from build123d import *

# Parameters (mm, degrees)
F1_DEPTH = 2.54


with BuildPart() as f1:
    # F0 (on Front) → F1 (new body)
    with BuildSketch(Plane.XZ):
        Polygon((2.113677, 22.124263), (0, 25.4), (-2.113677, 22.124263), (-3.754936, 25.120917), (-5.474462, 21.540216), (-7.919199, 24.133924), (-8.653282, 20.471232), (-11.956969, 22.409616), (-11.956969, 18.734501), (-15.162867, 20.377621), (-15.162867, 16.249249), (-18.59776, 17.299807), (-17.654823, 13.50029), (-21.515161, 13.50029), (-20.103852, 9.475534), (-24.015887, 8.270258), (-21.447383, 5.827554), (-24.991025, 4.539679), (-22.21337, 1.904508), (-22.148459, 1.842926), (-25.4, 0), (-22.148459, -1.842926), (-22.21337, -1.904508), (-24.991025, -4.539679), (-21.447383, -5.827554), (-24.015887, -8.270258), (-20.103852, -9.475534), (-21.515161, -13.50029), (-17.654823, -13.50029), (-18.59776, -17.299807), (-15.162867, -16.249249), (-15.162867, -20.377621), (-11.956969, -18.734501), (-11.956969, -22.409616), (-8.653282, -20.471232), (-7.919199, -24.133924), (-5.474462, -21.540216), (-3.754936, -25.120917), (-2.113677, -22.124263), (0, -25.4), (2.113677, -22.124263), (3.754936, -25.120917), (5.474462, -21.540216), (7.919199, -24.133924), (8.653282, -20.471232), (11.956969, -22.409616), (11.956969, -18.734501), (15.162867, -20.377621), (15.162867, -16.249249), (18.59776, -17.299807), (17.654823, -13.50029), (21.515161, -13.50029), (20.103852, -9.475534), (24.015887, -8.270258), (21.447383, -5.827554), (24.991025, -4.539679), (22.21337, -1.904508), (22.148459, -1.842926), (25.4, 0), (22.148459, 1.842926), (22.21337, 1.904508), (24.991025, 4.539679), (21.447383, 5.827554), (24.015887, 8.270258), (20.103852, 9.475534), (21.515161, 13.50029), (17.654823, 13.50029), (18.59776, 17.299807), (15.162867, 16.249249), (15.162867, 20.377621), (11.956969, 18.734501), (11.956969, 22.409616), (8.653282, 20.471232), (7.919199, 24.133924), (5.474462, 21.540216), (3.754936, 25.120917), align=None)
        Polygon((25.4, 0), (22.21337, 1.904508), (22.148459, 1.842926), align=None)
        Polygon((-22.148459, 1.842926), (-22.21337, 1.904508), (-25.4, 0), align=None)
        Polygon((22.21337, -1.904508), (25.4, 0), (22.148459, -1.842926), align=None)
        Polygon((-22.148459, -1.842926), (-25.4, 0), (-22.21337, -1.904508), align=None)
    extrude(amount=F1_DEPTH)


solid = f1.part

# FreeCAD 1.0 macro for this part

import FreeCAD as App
import Part
import Sketcher
from FreeCAD import Vector
Q = App.Units.Quantity

doc = App.newDocument("Part")
params = doc.addObject("Spreadsheet::Sheet", "Params")
for row, (alias, value) in enumerate([
    ("pad1_length", "0.1 in"),
], start=1):
    params.set(f"A{row}", alias)
    params.set(f"B{row}", "=" + value)
    params.setAlias(f"B{row}", alias)

body = doc.addObject("PartDesign::Body", "Body")

# Sketch on XZ plane
sketch1 = doc.addObject("Sketcher::SketchObject", "Sketch")
body.addObject(sketch1)
sketch1.AttachmentSupport = (doc.XZ_Plane, [""])
sketch1.MapMode = "FlatFace"
sketch1.addGeometry([
    Part.LineSegment(Vector(3.8, 25.1, 0), Vector(2.1, 22.1, 0)),  # 0
    Part.LineSegment(Vector(2.1, 22.1, 0), Vector(0, 25.4, 0)),  # 1
    Part.LineSegment(Vector(0, 25.4, 0), Vector(-2.1, 22.1, 0)),  # 2
    Part.LineSegment(Vector(-2.1, 22.1, 0), Vector(-3.8, 25.1, 0)),  # 3
    Part.LineSegment(Vector(-3.8, 25.1, 0), Vector(-5.5, 21.5, 0)),  # 4
    Part.LineSegment(Vector(-5.5, 21.5, 0), Vector(-7.9, 24.1, 0)),  # 5
    Part.LineSegment(Vector(-7.9, 24.1, 0), Vector(-8.7, 20.5, 0)),  # 6
    Part.LineSegment(Vector(-8.7, 20.5, 0), Vector(-12, 22.4, 0)),  # 7
    Part.LineSegment(Vector(-12, 22.4, 0), Vector(-12, 18.7, 0)),  # 8
    Part.LineSegment(Vector(-12, 18.7, 0), Vector(-15.2, 20.4, 0)),  # 9
    Part.LineSegment(Vector(-15.2, 20.4, 0), Vector(-15.2, 16.2, 0)),  # 10
    Part.LineSegment(Vector(-15.2, 16.2, 0), Vector(-18.6, 17.3, 0)),  # 11
    Part.LineSegment(Vector(-18.6, 17.3, 0), Vector(-17.7, 13.5, 0)),  # 12
    Part.LineSegment(Vector(-17.7, 13.5, 0), Vector(-21.5, 13.5, 0)),  # 13
    Part.LineSegment(Vector(-21.5, 13.5, 0), Vector(-20.1, 9.5, 0)),  # 14
    Part.LineSegment(Vector(-20.1, 9.5, 0), Vector(-24, 8.3, 0)),  # 15
    Part.LineSegment(Vector(-24, 8.3, 0), Vector(-21.4, 5.8, 0)),  # 16
    Part.LineSegment(Vector(-21.4, 5.8, 0), Vector(-25, 4.5, 0)),  # 17
    Part.LineSegment(Vector(-25, 4.5, 0), Vector(-22.2, 1.9, 0)),  # 18
    Part.LineSegment(Vector(-22.2, 1.9, 0), Vector(-25.4, 0, 0)),  # 19
    Part.LineSegment(Vector(-25.4, 0, 0), Vector(-22.2, -1.9, 0)),  # 20
    Part.LineSegment(Vector(-22.2, -1.9, 0), Vector(-25, -4.5, 0)),  # 21
    Part.LineSegment(Vector(-25, -4.5, 0), Vector(-21.4, -5.8, 0)),  # 22
    Part.LineSegment(Vector(-21.4, -5.8, 0), Vector(-24, -8.3, 0)),  # 23
    Part.LineSegment(Vector(-24, -8.3, 0), Vector(-20.1, -9.5, 0)),  # 24
    Part.LineSegment(Vector(-20.1, -9.5, 0), Vector(-21.5, -13.5, 0)),  # 25
    Part.LineSegment(Vector(-21.5, -13.5, 0), Vector(-17.7, -13.5, 0)),  # 26
    Part.LineSegment(Vector(-17.7, -13.5, 0), Vector(-18.6, -17.3, 0)),  # 27
    Part.LineSegment(Vector(-18.6, -17.3, 0), Vector(-15.2, -16.2, 0)),  # 28
    Part.LineSegment(Vector(-15.2, -16.2, 0), Vector(-15.2, -20.4, 0)),  # 29
    Part.LineSegment(Vector(-15.2, -20.4, 0), Vector(-12, -18.7, 0)),  # 30
    Part.LineSegment(Vector(-12, -18.7, 0), Vector(-12, -22.4, 0)),  # 31
    Part.LineSegment(Vector(-12, -22.4, 0), Vector(-8.7, -20.5, 0)),  # 32
    Part.LineSegment(Vector(-8.7, -20.5, 0), Vector(-7.9, -24.1, 0)),  # 33
    Part.LineSegment(Vector(-7.9, -24.1, 0), Vector(-5.5, -21.5, 0)),  # 34
    Part.LineSegment(Vector(-5.5, -21.5, 0), Vector(-3.8, -25.1, 0)),  # 35
    Part.LineSegment(Vector(-3.8, -25.1, 0), Vector(-2.1, -22.1, 0)),  # 36
    Part.LineSegment(Vector(-2.1, -22.1, 0), Vector(0, -25.4, 0)),  # 37
    Part.LineSegment(Vector(0, -25.4, 0), Vector(2.1, -22.1, 0)),  # 38
    Part.LineSegment(Vector(2.1, -22.1, 0), Vector(3.8, -25.1, 0)),  # 39
    Part.LineSegment(Vector(3.8, -25.1, 0), Vector(5.5, -21.5, 0)),  # 40
    Part.LineSegment(Vector(5.5, -21.5, 0), Vector(7.9, -24.1, 0)),  # 41
    Part.LineSegment(Vector(7.9, -24.1, 0), Vector(8.7, -20.5, 0)),  # 42
    Part.LineSegment(Vector(8.7, -20.5, 0), Vector(12, -22.4, 0)),  # 43
    Part.LineSegment(Vector(12, -22.4, 0), Vector(12, -18.7, 0)),  # 44
    Part.LineSegment(Vector(12, -18.7, 0), Vector(15.2, -20.4, 0)),  # 45
    Part.LineSegment(Vector(15.2, -20.4, 0), Vector(15.2, -16.2, 0)),  # 46
    Part.LineSegment(Vector(15.2, -16.2, 0), Vector(18.6, -17.3, 0)),  # 47
    Part.LineSegment(Vector(18.6, -17.3, 0), Vector(17.7, -13.5, 0)),  # 48
    Part.LineSegment(Vector(17.7, -13.5, 0), Vector(21.5, -13.5, 0)),  # 49
    Part.LineSegment(Vector(21.5, -13.5, 0), Vector(20.1, -9.5, 0)),  # 50
    Part.LineSegment(Vector(20.1, -9.5, 0), Vector(24, -8.3, 0)),  # 51
    Part.LineSegment(Vector(24, -8.3, 0), Vector(21.4, -5.8, 0)),  # 52
    Part.LineSegment(Vector(21.4, -5.8, 0), Vector(25, -4.5, 0)),  # 53
    Part.LineSegment(Vector(25, -4.5, 0), Vector(22.2, -1.9, 0)),  # 54
    Part.LineSegment(Vector(22.2, -1.9, 0), Vector(25.4, 0, 0)),  # 55
    Part.LineSegment(Vector(25.4, 0, 0), Vector(22.2, 1.9, 0)),  # 56
    Part.LineSegment(Vector(22.2, 1.9, 0), Vector(25, 4.5, 0)),  # 57
    Part.LineSegment(Vector(25, 4.5, 0), Vector(21.4, 5.8, 0)),  # 58
    Part.LineSegment(Vector(21.4, 5.8, 0), Vector(24, 8.3, 0)),  # 59
    Part.LineSegment(Vector(24, 8.3, 0), Vector(20.1, 9.5, 0)),  # 60
    Part.LineSegment(Vector(20.1, 9.5, 0), Vector(21.5, 13.5, 0)),  # 61
    Part.LineSegment(Vector(21.5, 13.5, 0), Vector(17.7, 13.5, 0)),  # 62
    Part.LineSegment(Vector(17.7, 13.5, 0), Vector(18.6, 17.3, 0)),  # 63
    Part.LineSegment(Vector(18.6, 17.3, 0), Vector(15.2, 16.2, 0)),  # 64
    Part.LineSegment(Vector(15.2, 16.2, 0), Vector(15.2, 20.4, 0)),  # 65
    Part.LineSegment(Vector(15.2, 20.4, 0), Vector(12, 18.7, 0)),  # 66
    Part.LineSegment(Vector(12, 18.7, 0), Vector(12, 22.4, 0)),  # 67
    Part.LineSegment(Vector(12, 22.4, 0), Vector(8.7, 20.5, 0)),  # 68
    Part.LineSegment(Vector(8.7, 20.5, 0), Vector(7.9, 24.1, 0)),  # 69
    Part.LineSegment(Vector(7.9, 24.1, 0), Vector(5.5, 21.5, 0)),  # 70
    Part.LineSegment(Vector(5.5, 21.5, 0), Vector(3.8, 25.1, 0)),  # 71
], False)
sketch1.addConstraint([
    Sketcher.Constraint("Coincident", 0, 2, 1, 1),
    Sketcher.Constraint("Coincident", 1, 2, 2, 1),
    Sketcher.Constraint("Coincident", 2, 2, 3, 1),
    Sketcher.Constraint("Coincident", 3, 2, 4, 1),
    Sketcher.Constraint("Coincident", 4, 2, 5, 1),
    Sketcher.Constraint("Coincident", 5, 2, 6, 1),
    Sketcher.Constraint("Coincident", 6, 2, 7, 1),
    Sketcher.Constraint("Coincident", 7, 2, 8, 1),
    Sketcher.Constraint("Coincident", 8, 2, 9, 1),
    Sketcher.Constraint("Coincident", 9, 2, 10, 1),
    Sketcher.Constraint("Coincident", 10, 2, 11, 1),
    Sketcher.Constraint("Coincident", 11, 2, 12, 1),
    Sketcher.Constraint("Coincident", 12, 2, 13, 1),
    Sketcher.Constraint("Coincident", 13, 2, 14, 1),
    Sketcher.Constraint("Coincident", 14, 2, 15, 1),
    Sketcher.Constraint("Coincident", 15, 2, 16, 1),
    Sketcher.Constraint("Coincident", 16, 2, 17, 1),
    Sketcher.Constraint("Coincident", 17, 2, 18, 1),
    Sketcher.Constraint("Coincident", 18, 2, 19, 1),
    Sketcher.Constraint("Coincident", 19, 2, 20, 1),
    Sketcher.Constraint("Coincident", 20, 2, 21, 1),
    Sketcher.Constraint("Coincident", 21, 2, 22, 1),
    Sketcher.Constraint("Coincident", 22, 2, 23, 1),
    Sketcher.Constraint("Coincident", 23, 2, 24, 1),
    Sketcher.Constraint("Coincident", 24, 2, 25, 1),
    Sketcher.Constraint("Coincident", 25, 2, 26, 1),
    Sketcher.Constraint("Coincident", 26, 2, 27, 1),
    Sketcher.Constraint("Coincident", 27, 2, 28, 1),
    Sketcher.Constraint("Coincident", 28, 2, 29, 1),
    Sketcher.Constraint("Coincident", 29, 2, 30, 1),
    Sketcher.Constraint("Coincident", 30, 2, 31, 1),
    Sketcher.Constraint("Coincident", 31, 2, 32, 1),
    Sketcher.Constraint("Coincident", 32, 2, 33, 1),
    Sketcher.Constraint("Coincident", 33, 2, 34, 1),
    Sketcher.Constraint("Coincident", 34, 2, 35, 1),
    Sketcher.Constraint("Coincident", 35, 2, 36, 1),
    Sketcher.Constraint("Coincident", 36, 2, 37, 1),
    Sketcher.Constraint("Coincident", 37, 2, 38, 1),
    Sketcher.Constraint("Coincident", 38, 2, 39, 1),
    Sketcher.Constraint("Coincident", 39, 2, 40, 1),
    Sketcher.Constraint("Coincident", 40, 2, 41, 1),
    Sketcher.Constraint("Coincident", 41, 2, 42, 1),
    Sketcher.Constraint("Coincident", 42, 2, 43, 1),
    Sketcher.Constraint("Coincident", 43, 2, 44, 1),
    Sketcher.Constraint("Coincident", 44, 2, 45, 1),
    Sketcher.Constraint("Coincident", 45, 2, 46, 1),
    Sketcher.Constraint("Coincident", 46, 2, 47, 1),
    Sketcher.Constraint("Coincident", 47, 2, 48, 1),
    Sketcher.Constraint("Coincident", 48, 2, 49, 1),
    Sketcher.Constraint("Coincident", 49, 2, 50, 1),
    Sketcher.Constraint("Coincident", 50, 2, 51, 1),
    Sketcher.Constraint("Coincident", 51, 2, 52, 1),
    Sketcher.Constraint("Coincident", 52, 2, 53, 1),
    Sketcher.Constraint("Coincident", 53, 2, 54, 1),
    Sketcher.Constraint("Coincident", 54, 2, 55, 1),
    Sketcher.Constraint("Coincident", 55, 2, 56, 1),
    Sketcher.Constraint("Coincident", 56, 2, 57, 1),
    Sketcher.Constraint("Coincident", 57, 2, 58, 1),
    Sketcher.Constraint("Coincident", 58, 2, 59, 1),
    Sketcher.Constraint("Coincident", 59, 2, 60, 1),
    Sketcher.Constraint("Coincident", 60, 2, 61, 1),
    Sketcher.Constraint("Coincident", 61, 2, 62, 1),
    Sketcher.Constraint("Coincident", 62, 2, 63, 1),
    Sketcher.Constraint("Coincident", 63, 2, 64, 1),
    Sketcher.Constraint("Coincident", 64, 2, 65, 1),
    Sketcher.Constraint("Coincident", 65, 2, 66, 1),
    Sketcher.Constraint("Coincident", 66, 2, 67, 1),
    Sketcher.Constraint("Coincident", 67, 2, 68, 1),
    Sketcher.Constraint("Coincident", 68, 2, 69, 1),
    Sketcher.Constraint("Coincident", 69, 2, 70, 1),
    Sketcher.Constraint("Coincident", 70, 2, 71, 1),
    Sketcher.Constraint("Coincident", 71, 2, 0, 1),
    Sketcher.Constraint("Vertical", 8),
    Sketcher.Constraint("Vertical", 10),
    Sketcher.Constraint("Horizontal", 13),
    Sketcher.Constraint("Horizontal", 26),
    Sketcher.Constraint("Vertical", 29),
    Sketcher.Constraint("Vertical", 31),
    Sketcher.Constraint("Vertical", 44),
    Sketcher.Constraint("Vertical", 46),
    Sketcher.Constraint("Horizontal", 49),
    Sketcher.Constraint("Horizontal", 62),
    Sketcher.Constraint("Vertical", 65),
    Sketcher.Constraint("Vertical", 67),
    Sketcher.Constraint("Symmetric", 0, 2, 36, 2, -1, 1),
    Sketcher.Constraint("Symmetric", 1, 2, 37, 2, -1, 1),
    Sketcher.Constraint("Symmetric", 2, 2, 38, 2, -1, 1),
    Sketcher.Constraint("Symmetric", 3, 2, 39, 2, -1, 1),
    Sketcher.Constraint("Symmetric", 4, 2, 40, 2, -1, 1),
    Sketcher.Constraint("Symmetric", 5, 2, 41, 2, -1, 1),
    Sketcher.Constraint("Symmetric", 6, 2, 42, 2, -1, 1),
    Sketcher.Constraint("Symmetric", 7, 2, 43, 2, -1, 1),
    Sketcher.Constraint("Symmetric", 9, 2, 45, 2, -1, 1),
    Sketcher.Constraint("Symmetric", 11, 2, 47, 2, -1, 1),
    Sketcher.Constraint("Symmetric", 12, 2, 48, 2, -1, 1),
    Sketcher.Constraint("Symmetric", 14, 2, 50, 2, -1, 1),
    Sketcher.Constraint("Symmetric", 15, 2, 51, 2, -1, 1),
    Sketcher.Constraint("Symmetric", 16, 2, 52, 2, -1, 1),
    Sketcher.Constraint("Symmetric", 17, 2, 53, 2, -1, 1),
    Sketcher.Constraint("Symmetric", 18, 2, 54, 2, -1, 1),
    Sketcher.Constraint("Symmetric", 19, 2, 55, 2, -1, 1),
    Sketcher.Constraint("Symmetric", 20, 2, 56, 2, -1, 1),
    Sketcher.Constraint("Symmetric", 21, 2, 57, 2, -1, 1),
    Sketcher.Constraint("Symmetric", 22, 2, 58, 2, -1, 1),
    Sketcher.Constraint("Symmetric", 23, 2, 59, 2, -1, 1),
    Sketcher.Constraint("Symmetric", 24, 2, 60, 2, -1, 1),
    Sketcher.Constraint("Symmetric", 25, 2, 61, 2, -1, 1),
    Sketcher.Constraint("Symmetric", 27, 2, 63, 2, -1, 1),
    Sketcher.Constraint("Symmetric", 28, 2, 64, 2, -1, 1),
    Sketcher.Constraint("Symmetric", 30, 2, 66, 2, -1, 1),
    Sketcher.Constraint("Symmetric", 32, 2, 68, 2, -1, 1),
    Sketcher.Constraint("Symmetric", 33, 2, 69, 2, -1, 1),
    Sketcher.Constraint("Symmetric", 34, 2, 70, 2, -1, 1),
    Sketcher.Constraint("Symmetric", 35, 2, 71, 2, -1, 1),
    Sketcher.Constraint("Symmetric", 0, 2, 2, 2, -2),
    Sketcher.Constraint("Symmetric", 35, 2, 39, 2, -2),
    Sketcher.Constraint("Symmetric", 34, 2, 40, 2, -2),
    Sketcher.Constraint("Symmetric", 33, 2, 41, 2, -2),
    Sketcher.Constraint("Symmetric", 32, 2, 42, 2, -2),
    Sketcher.Constraint("Symmetric", 31, 2, 43, 2, -2),
    Sketcher.Constraint("Symmetric", 29, 2, 45, 2, -2),
    Sketcher.Constraint("Symmetric", 27, 2, 47, 2, -2),
    Sketcher.Constraint("Symmetric", 26, 2, 48, 2, -2),
    Sketcher.Constraint("Symmetric", 24, 2, 50, 2, -2),
    Sketcher.Constraint("Symmetric", 23, 2, 51, 2, -2),
    Sketcher.Constraint("Symmetric", 22, 2, 52, 2, -2),
    Sketcher.Constraint("Symmetric", 21, 2, 53, 2, -2),
    Sketcher.Constraint("Symmetric", 20, 2, 54, 2, -2),
    Sketcher.Constraint("PointOnObject", 1, 2, -2),
    Sketcher.Constraint("PointOnObject", 19, 2, -1),
    Sketcher.Constraint("Parallel", 9, 45),
    Sketcher.Constraint("Parallel", 11, 47),
    Sketcher.Constraint("Parallel", 14, 50),
    Sketcher.Constraint("Parallel", 27, 63),
    Sketcher.Constraint("Parallel", 30, 66),
    Sketcher.Constraint("Parallel", 32, 68),
    Sketcher.Constraint("Horizontal", 30, 2, 44, 2),
    Sketcher.Constraint("Horizontal", 28, 2, 46, 2),
    Sketcher.Constraint("Vertical", 13, 2, 25, 2),
    Sketcher.Constraint("DistanceY", -1, 1, 1, 2, Q("1 in")),
    Sketcher.Constraint("DistanceX", 19, 2, -1, 1, Q("1 in")),
    Sketcher.Constraint("DistanceX", 5, 2, -1, 1, 7.919199),
    Sketcher.Constraint("DistanceY", -1, 1, 8, 2, 18.734501),
    Sketcher.Constraint("Distance", 1, 3.898472),
    Sketcher.Constraint("Distance", 6, 3.735531),
    Sketcher.Constraint("Distance", 18, 3.828772),
    Sketcher.Constraint("Distance", 19, 3.712379),
    Sketcher.Constraint("DistanceX", 13, 2, 13, 1, 3.860338),
    Sketcher.Constraint("DistanceY", 8, 2, 8, 1, 3.675115),
    Sketcher.Constraint("DistanceY", 10, 2, 10, 1, 4.128372),
    Sketcher.Constraint("DistanceX", 7, 2, -1, 1, 11.956969),
    Sketcher.Constraint("DistanceY", -1, 1, 9, 2, 20.377621),
    Sketcher.Constraint("DistanceX", 11, 2, -1, 1, 18.59776),
    Sketcher.Constraint("DistanceY", -1, 1, 12, 2, 13.50029),
    Sketcher.Constraint("DistanceX", 13, 2, -1, 1, 21.515161),
    Sketcher.Constraint("DistanceX", 14, 2, -1, 1, 20.103852),
    Sketcher.Constraint("DistanceY", -1, 1, 17, 2, 4.539679),
    Sketcher.Constraint("DistanceX", 18, 2, -1, 1, 22.21337),
    Sketcher.Constraint("Distance", 0, 3.416675),
    Sketcher.Constraint("Distance", 4, 3.972177),
    Sketcher.Constraint("Distance", 5, 3.564276),
    Sketcher.Constraint("Distance", 7, 3.830363),
    Sketcher.Constraint("Distance", 9, 3.602447),
    Sketcher.Constraint("Distance", 11, 3.591958),
    Sketcher.Constraint("Distance", 14, 4.265027),
    Sketcher.Constraint("Distance", 15, 4.093496),
    Sketcher.Constraint("Distance", 16, 3.544576),
    Sketcher.Constraint("Distance", 17, 3.770414),
    Sketcher.Constraint("DistanceX", -1, 1, 0, 2, 2.113677),
    Sketcher.Constraint("DistanceX", 3, 2, -1, 1, 3.754936),
    Sketcher.Constraint("DistanceX", 4, 2, -1, 1, 5.474462),
    Sketcher.Constraint("DistanceX", 15, 2, -1, 1, 24.015887),
])
pad1 = doc.addObject("PartDesign::Pad", "Pad")
body.addObject(pad1)
pad1.Profile = sketch1
pad1.setExpression("Length", "Params.pad1_length")

doc.recompute()
